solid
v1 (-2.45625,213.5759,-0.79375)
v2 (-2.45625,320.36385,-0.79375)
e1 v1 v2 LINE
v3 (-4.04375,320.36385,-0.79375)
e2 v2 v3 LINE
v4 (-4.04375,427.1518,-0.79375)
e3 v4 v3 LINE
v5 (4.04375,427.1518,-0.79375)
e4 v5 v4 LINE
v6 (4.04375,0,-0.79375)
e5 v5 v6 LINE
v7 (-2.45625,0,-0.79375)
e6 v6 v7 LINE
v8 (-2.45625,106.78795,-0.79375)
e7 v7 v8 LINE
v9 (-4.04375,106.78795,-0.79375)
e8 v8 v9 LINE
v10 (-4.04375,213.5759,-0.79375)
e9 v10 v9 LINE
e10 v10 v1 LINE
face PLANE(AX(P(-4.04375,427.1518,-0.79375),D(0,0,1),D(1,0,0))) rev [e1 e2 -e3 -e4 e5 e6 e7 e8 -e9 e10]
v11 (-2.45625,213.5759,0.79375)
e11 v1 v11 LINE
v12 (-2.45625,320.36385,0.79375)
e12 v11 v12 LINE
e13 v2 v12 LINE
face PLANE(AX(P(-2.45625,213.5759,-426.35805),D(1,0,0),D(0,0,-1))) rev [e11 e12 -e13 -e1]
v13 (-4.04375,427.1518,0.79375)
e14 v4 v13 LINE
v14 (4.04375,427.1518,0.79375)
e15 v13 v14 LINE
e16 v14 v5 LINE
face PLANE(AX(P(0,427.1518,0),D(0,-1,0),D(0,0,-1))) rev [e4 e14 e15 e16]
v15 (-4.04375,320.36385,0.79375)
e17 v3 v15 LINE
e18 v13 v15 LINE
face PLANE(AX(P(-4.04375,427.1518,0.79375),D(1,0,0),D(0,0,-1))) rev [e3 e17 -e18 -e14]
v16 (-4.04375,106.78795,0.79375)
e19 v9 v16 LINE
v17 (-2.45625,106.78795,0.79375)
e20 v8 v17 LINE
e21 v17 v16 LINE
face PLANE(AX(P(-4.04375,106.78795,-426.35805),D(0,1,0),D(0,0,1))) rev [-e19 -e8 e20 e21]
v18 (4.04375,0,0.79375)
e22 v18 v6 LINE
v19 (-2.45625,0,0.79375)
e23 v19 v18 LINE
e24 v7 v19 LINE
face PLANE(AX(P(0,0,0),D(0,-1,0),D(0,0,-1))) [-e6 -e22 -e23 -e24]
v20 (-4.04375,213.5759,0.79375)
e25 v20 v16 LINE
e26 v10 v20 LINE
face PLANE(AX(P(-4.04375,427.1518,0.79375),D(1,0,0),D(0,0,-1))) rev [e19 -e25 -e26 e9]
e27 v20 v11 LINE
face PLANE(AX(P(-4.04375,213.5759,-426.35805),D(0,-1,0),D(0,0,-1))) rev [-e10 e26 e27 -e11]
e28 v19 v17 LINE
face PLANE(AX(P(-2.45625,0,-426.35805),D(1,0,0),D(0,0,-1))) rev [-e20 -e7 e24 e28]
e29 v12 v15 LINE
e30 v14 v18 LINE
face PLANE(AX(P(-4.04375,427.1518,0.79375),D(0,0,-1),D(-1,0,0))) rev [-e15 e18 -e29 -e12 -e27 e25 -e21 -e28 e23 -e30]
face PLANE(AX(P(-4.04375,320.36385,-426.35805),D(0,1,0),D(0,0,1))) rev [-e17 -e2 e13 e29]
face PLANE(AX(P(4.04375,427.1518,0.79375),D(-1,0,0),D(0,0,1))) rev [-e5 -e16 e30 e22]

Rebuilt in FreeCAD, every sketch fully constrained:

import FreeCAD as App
import Part
import Sketcher
Q = App.Units.Quantity


def add_polygon(sketch, points):
    """Adds a closed chain of lines whose ends are joined by coincident constraints."""
    first, n = sketch.GeometryCount, len(points)
    for a, b in zip(points, points[1:] + points[:1]):
        sketch.addGeometry(Part.LineSegment(App.Vector(*a, 0), App.Vector(*b, 0)), False)
    for i in range(n):
        sketch.addConstraint(Sketcher.Constraint("Coincident", first + i, 2, first + (i + 1) % n, 1))

doc = App.newDocument("Part")
body = doc.addObject("PartDesign::Body", "Body")

# Sketch on XZ plane
sketch1 = body.newObject("Sketcher::SketchObject", "Sketch")
sketch1.AttachmentSupport = (doc.getObject("XZ_Plane"), [""])
sketch1.MapMode = "FlatFace"
add_polygon(sketch1, [(-4, -0.8), (-4, 0.8), (4, 0.8), (4, -0.8)])  # lines 0-3
sketch1.addConstraint([
    Sketcher.Constraint("Vertical", 0),
    Sketcher.Constraint("Horizontal", 1),
    Sketcher.Constraint("Vertical", 2),
    Sketcher.Constraint("Horizontal", 3),
    Sketcher.Constraint("Symmetric", 0, 2, 2, 2, -1, 1),
    Sketcher.Constraint("DistanceY", 0, 1, 0, 2, Q("0.0625 in")),
    Sketcher.Constraint("DistanceX", 1, 1, 1, 2, 8.0875),
])
pad1 = body.newObject("PartDesign::Pad", "Pad")
pad1.Profile = sketch1
pad1.Length = Q("16.817 in")
pad1.Reversed = True

# Sketch on XY plane
sketch2 = body.newObject("Sketcher::SketchObject", "Sketch001")
sketch2.AttachmentSupport = (doc.getObject("XY_Plane"), [""])
sketch2.MapMode = "FlatFace"
sketch2.AttachmentOffset = App.Placement(App.Vector(0, 0, 0.03125 * 25.4), App.Rotation())
add_polygon(sketch2, [(-4, 106.8), (-4, 0), (-2.5, 0), (-2.5, 106.8)])  # lines 0-3
add_polygon(sketch2, [(-4, 320.4), (-4, 213.6), (-2.5, 213.6), (-2.5, 320.4)])  # lines 4-7
sketch2.addConstraint([
    Sketcher.Constraint("Vertical", 0),
    Sketcher.Constraint("Horizontal", 1),
    Sketcher.Constraint("Vertical", 2),
    Sketcher.Constraint("Horizontal", 3),
    Sketcher.Constraint("Vertical", 4),
    Sketcher.Constraint("Horizontal", 5),
    Sketcher.Constraint("Vertical", 6),
    Sketcher.Constraint("Horizontal", 7),
    Sketcher.Constraint("PointOnObject", 0, 2, -1),
    Sketcher.Constraint("Vertical", 3, 2, 4, 2),
    Sketcher.Constraint("Vertical", 2, 2, 5, 2),
    Sketcher.Constraint("Equal", 2, 4),
    Sketcher.Constraint("DistanceX", 1, 1, 1, 2, Q("0.0625 in")),
    Sketcher.Constraint("DistanceY", -1, 1, 4, 2, Q("8.4085 in")),
    Sketcher.Constraint("DistanceY", 0, 2, 0, 1, 106.78795),
    Sketcher.Constraint("DistanceX", 0, 2, -1, 1, 4.04375),
])
pocket1 = body.newObject("PartDesign::Pocket", "Pocket")
pocket1.Profile = sketch2
pocket1.Length = Q("16.817 in")

doc.recompute()
